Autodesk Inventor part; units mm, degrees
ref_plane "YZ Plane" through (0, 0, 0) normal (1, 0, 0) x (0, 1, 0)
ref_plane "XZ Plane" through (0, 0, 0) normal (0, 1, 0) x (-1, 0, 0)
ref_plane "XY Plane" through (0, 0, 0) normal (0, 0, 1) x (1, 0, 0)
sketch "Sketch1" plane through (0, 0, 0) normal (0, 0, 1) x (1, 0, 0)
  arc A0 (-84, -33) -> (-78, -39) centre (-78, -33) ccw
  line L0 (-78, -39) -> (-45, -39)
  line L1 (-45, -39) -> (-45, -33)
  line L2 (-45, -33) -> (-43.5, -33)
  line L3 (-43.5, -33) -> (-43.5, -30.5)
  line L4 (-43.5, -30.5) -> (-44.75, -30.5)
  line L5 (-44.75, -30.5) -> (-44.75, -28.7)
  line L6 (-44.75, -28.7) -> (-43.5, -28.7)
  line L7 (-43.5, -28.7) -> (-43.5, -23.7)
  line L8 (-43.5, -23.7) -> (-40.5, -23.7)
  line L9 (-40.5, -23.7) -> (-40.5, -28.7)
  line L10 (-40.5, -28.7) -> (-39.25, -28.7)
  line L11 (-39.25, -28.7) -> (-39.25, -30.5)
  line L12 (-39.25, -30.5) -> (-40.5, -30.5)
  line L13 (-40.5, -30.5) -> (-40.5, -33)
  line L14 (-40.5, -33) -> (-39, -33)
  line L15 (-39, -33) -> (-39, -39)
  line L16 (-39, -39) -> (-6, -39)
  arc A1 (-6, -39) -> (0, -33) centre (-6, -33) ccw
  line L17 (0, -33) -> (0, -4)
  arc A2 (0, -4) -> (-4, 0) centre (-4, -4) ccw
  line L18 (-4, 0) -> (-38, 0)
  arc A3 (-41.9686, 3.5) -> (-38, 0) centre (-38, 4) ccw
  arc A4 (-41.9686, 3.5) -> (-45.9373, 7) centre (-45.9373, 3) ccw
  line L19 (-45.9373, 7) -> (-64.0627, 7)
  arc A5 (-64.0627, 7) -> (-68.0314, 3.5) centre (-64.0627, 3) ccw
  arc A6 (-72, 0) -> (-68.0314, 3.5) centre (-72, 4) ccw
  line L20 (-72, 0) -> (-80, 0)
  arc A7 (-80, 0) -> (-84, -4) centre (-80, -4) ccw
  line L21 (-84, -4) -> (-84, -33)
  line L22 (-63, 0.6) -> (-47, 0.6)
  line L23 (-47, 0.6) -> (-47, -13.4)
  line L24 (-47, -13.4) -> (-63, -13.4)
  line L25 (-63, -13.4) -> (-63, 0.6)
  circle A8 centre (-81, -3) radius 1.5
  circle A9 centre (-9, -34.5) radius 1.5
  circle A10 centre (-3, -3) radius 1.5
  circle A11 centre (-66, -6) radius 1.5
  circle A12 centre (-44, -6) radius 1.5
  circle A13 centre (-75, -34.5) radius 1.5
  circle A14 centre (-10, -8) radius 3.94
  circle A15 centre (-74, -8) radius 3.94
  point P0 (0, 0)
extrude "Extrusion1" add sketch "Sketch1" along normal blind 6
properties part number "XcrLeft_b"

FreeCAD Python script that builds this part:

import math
import FreeCAD as App
import Part
import Sketcher

doc = App.newDocument("Part")
body = doc.addObject("PartDesign::Body", "Body")

sketch1 = doc.addObject("Sketcher::SketchObject", "Sketch")
body.addObject(sketch1)
sketch1.AttachmentSupport = (doc.XY_Plane, [""])
sketch1.MapMode = "FlatFace"
sketch1.addGeometry([
    Part.LineSegment(App.Vector(-84, -4, 0), App.Vector(-84, -33, 0)),
    Part.ArcOfCircle(Part.Circle(App.Vector(-78, -33, 0), App.Vector(0, 0, 1), 6), math.radians(180), math.radians(270)),
    Part.LineSegment(App.Vector(-78, -39, 0), App.Vector(-45, -39, 0)),
    Part.LineSegment(App.Vector(-45, -39, 0), App.Vector(-45, -33, 0)),
    Part.LineSegment(App.Vector(-45, -33, 0), App.Vector(-43.5, -33, 0)),
    Part.LineSegment(App.Vector(-43.5, -33, 0), App.Vector(-43.5, -30.5, 0)),
    Part.LineSegment(App.Vector(-43.5, -30.5, 0), App.Vector(-44.8, -30.5, 0)),
    Part.LineSegment(App.Vector(-44.8, -30.5, 0), App.Vector(-44.8, -28.7, 0)),
    Part.LineSegment(App.Vector(-44.8, -28.7, 0), App.Vector(-43.5, -28.7, 0)),
    Part.LineSegment(App.Vector(-43.5, -28.7, 0), App.Vector(-43.5, -23.7, 0)),
    Part.LineSegment(App.Vector(-43.5, -23.7, 0), App.Vector(-40.5, -23.7, 0)),
    Part.LineSegment(App.Vector(-40.5, -23.7, 0), App.Vector(-40.5, -28.7, 0)),
    Part.LineSegment(App.Vector(-40.5, -28.7, 0), App.Vector(-39.2, -28.7, 0)),
    Part.LineSegment(App.Vector(-39.2, -28.7, 0), App.Vector(-39.2, -30.5, 0)),
    Part.LineSegment(App.Vector(-39.2, -30.5, 0), App.Vector(-40.5, -30.5, 0)),
    Part.LineSegment(App.Vector(-40.5, -30.5, 0), App.Vector(-40.5, -33, 0)),
    Part.LineSegment(App.Vector(-40.5, -33, 0), App.Vector(-39, -33, 0)),
    Part.LineSegment(App.Vector(-39, -33, 0), App.Vector(-39, -39, 0)),
    Part.LineSegment(App.Vector(-39, -39, 0), App.Vector(-6, -39, 0)),
    Part.ArcOfCircle(Part.Circle(App.Vector(-6, -33, 0), App.Vector(0, 0, 1), 6), math.radians(-90), math.radians(0)),
    Part.LineSegment(App.Vector(0, -33, 0), App.Vector(0, -4, 0)),
    Part.ArcOfCircle(Part.Circle(App.Vector(-4, -4, 0), App.Vector(0, 0, 1), 4), math.radians(0), math.radians(90)),
    Part.LineSegment(App.Vector(-4, 0, 0), App.Vector(-38, 0, 0)),
    Part.ArcOfCircle(Part.Circle(App.Vector(-38, 4, 0), App.Vector(0, 0, 1), 4), math.radians(-173), math.radians(-90)),
    Part.ArcOfCircle(Part.Circle(App.Vector(-45.9, 3, 0), App.Vector(0, 0, 1), 4), math.radians(7), math.radians(90)),
    Part.LineSegment(App.Vector(-45.9, 7, 0), App.Vector(-64.1, 7, 0)),
    Part.ArcOfCircle(Part.Circle(App.Vector(-64.1, 3, 0), App.Vector(0, 0, 1), 4), math.radians(90), math.radians(173)),
    Part.ArcOfCircle(Part.Circle(App.Vector(-72, 4, 0), App.Vector(0, 0, 1), 4), math.radians(-90), math.radians(-7)),
    Part.LineSegment(App.Vector(-72, 0, 0), App.Vector(-80, 0, 0)),
    Part.ArcOfCircle(Part.Circle(App.Vector(-80, -4, 0), App.Vector(0, 0, 1), 4), math.radians(90), math.radians(180)),
    Part.Circle(App.Vector(-75, -34.5, 0), App.Vector(0, 0, 1), 1.5),
    Part.Circle(App.Vector(-9, -34.5, 0), App.Vector(0, 0, 1), 1.5),
    Part.Circle(App.Vector(-74, -8, 0), App.Vector(0, 0, 1), 3.9),
    Part.Circle(App.Vector(-66, -6, 0), App.Vector(0, 0, 1), 1.5),
    Part.LineSegment(App.Vector(-63, -13.4, 0), App.Vector(-63, 0.6, 0)),
    Part.LineSegment(App.Vector(-63, 0.6, 0), App.Vector(-47, 0.6, 0)),
    Part.LineSegment(App.Vector(-47, 0.6, 0), App.Vector(-47, -13.4, 0)),
    Part.LineSegment(App.Vector(-47, -13.4, 0), App.Vector(-63, -13.4, 0)),
    Part.Circle(App.Vector(-44, -6, 0), App.Vector(0, 0, 1), 1.5),
    Part.Circle(App.Vector(-81, -3, 0), App.Vector(0, 0, 1), 1.5),
    Part.Circle(App.Vector(-10, -8, 0), App.Vector(0, 0, 1), 3.9),
    Part.Circle(App.Vector(-3, -3, 0), App.Vector(0, 0, 1), 1.5),
], False)
sketch1.addConstraint([
    Sketcher.Constraint("Tangent", 0, 2, 1, 1),
    Sketcher.Constraint("Tangent", 1, 2, 2, 1),
    Sketcher.Constraint("Coincident", 2, 2, 3, 1),
    Sketcher.Constraint("Coincident", 3, 2, 4, 1),
    Sketcher.Constraint("Coincident", 4, 2, 5, 1),
    Sketcher.Constraint("Coincident", 5, 2, 6, 1),
    Sketcher.Constraint("Coincident", 6, 2, 7, 1),
    Sketcher.Constraint("Coincident", 7, 2, 8, 1),
    Sketcher.Constraint("Coincident", 8, 2, 9, 1),
    Sketcher.Constraint("Coincident", 9, 2, 10, 1),
    Sketcher.Constraint("Coincident", 10, 2, 11, 1),
    Sketcher.Constraint("Coincident", 11, 2, 12, 1),
    Sketcher.Constraint("Coincident", 12, 2, 13, 1),
    Sketcher.Constraint("Coincident", 13, 2, 14, 1),
    Sketcher.Constraint("Coincident", 14, 2, 15, 1),
    Sketcher.Constraint("Coincident", 15, 2, 16, 1),
    Sketcher.Constraint("Coincident", 16, 2, 17, 1),
    Sketcher.Constraint("Coincident", 17, 2, 18, 1),
    Sketcher.Constraint("Tangent", 18, 2, 19, 1),
    Sketcher.Constraint("Tangent", 19, 2, 20, 1),
    Sketcher.Constraint("Tangent", 20, 2, 21, 1),
    Sketcher.Constraint("Tangent", 21, 2, 22, 1),
    Sketcher.Constraint("Tangent", 22, 2, 23, 2),
    Sketcher.Constraint("Tangent", 23, 1, 24, 1),
    Sketcher.Constraint("Tangent", 24, 2, 25, 1),
    Sketcher.Constraint("Tangent", 25, 2, 26, 1),
    Sketcher.Constraint("Tangent", 26, 2, 27, 2),
    Sketcher.Constraint("Tangent", 27, 1, 28, 1),
    Sketcher.Constraint("Tangent", 28, 2, 29, 1),
    Sketcher.Constraint("Tangent", 29, 2, 0, 1),
    Sketcher.Constraint("Coincident", 34, 2, 35, 1),
    Sketcher.Constraint("Coincident", 35, 2, 36, 1),
    Sketcher.Constraint("Coincident", 36, 2, 37, 1),
    Sketcher.Constraint("Coincident", 37, 2, 34, 1),
    Sketcher.Constraint("Vertical", 0),
    Sketcher.Constraint("Horizontal", 2),
    Sketcher.Constraint("Vertical", 3),
    Sketcher.Constraint("Horizontal", 4),
    Sketcher.Constraint("Vertical", 5),
    Sketcher.Constraint("Horizontal", 6),
    Sketcher.Constraint("Vertical", 7),
    Sketcher.Constraint("Horizontal", 8),
    Sketcher.Constraint("Vertical", 9),
    Sketcher.Constraint("Horizontal", 10),
    Sketcher.Constraint("Vertical", 11),
    Sketcher.Constraint("Horizontal", 12),
    Sketcher.Constraint("Vertical", 13),
    Sketcher.Constraint("Horizontal", 14),
    Sketcher.Constraint("Vertical", 15),
    Sketcher.Constraint("Horizontal", 16),
    Sketcher.Constraint("Vertical", 17),
    Sketcher.Constraint("Horizontal", 18),
    Sketcher.Constraint("Vertical", 20),
    Sketcher.Constraint("Horizontal", 22),
    Sketcher.Constraint("Horizontal", 25),
    Sketcher.Constraint("Horizontal", 28),
    Sketcher.Constraint("Vertical", 34),
    Sketcher.Constraint("Horizontal", 35),
    Sketcher.Constraint("Vertical", 36),
    Sketcher.Constraint("Horizontal", 37),
    Sketcher.Constraint("Equal", 1, 19),
    Sketcher.Constraint("Equal", 21, 23),
    Sketcher.Constraint("Equal", 23, 24),
    Sketcher.Constraint("Equal", 24, 26),
    Sketcher.Constraint("Equal", 26, 27),
    Sketcher.Constraint("Equal", 27, 29),
    Sketcher.Constraint("Equal", 30, 31),
    Sketcher.Constraint("Equal", 31, 33),
    Sketcher.Constraint("Equal", 33, 38),
    Sketcher.Constraint("Equal", 38, 39),
    Sketcher.Constraint("Equal", 32, 40),
    Sketcher.Constraint("Equal", 39, 41),
    Sketcher.Constraint("PointOnObject", 19, 2, -2),
    Sketcher.Constraint("PointOnObject", 21, 2, -1),
    Sketcher.Constraint("PointOnObject", 27, 1, -1),
    Sketcher.Constraint("Horizontal", 1, 3, 19, 3),
    Sketcher.Constraint("Horizontal", 30, 3, 31, 3),
    Sketcher.Constraint("Horizontal", 33, 3, 38, 3),
    Sketcher.Constraint("Horizontal", 32, 3, 40, 3),
    Sketcher.Constraint("Horizontal", 39, 3, 41, 3),
    Sketcher.Constraint("Horizontal", 0, 2, 3, 2),
    Sketcher.Constraint("Horizontal", 8, 2, 11, 2),
    Sketcher.Constraint("Horizontal", 6, 2, 13, 2),
    Sketcher.Constraint("Horizontal", 4, 2, 15, 2),
    Sketcher.Constraint("Vertical", 5, 2, 8, 2),
    Sketcher.Constraint("Vertical", 11, 2, 14, 2),
    Sketcher.Constraint("Equal", 8, 12),
    Sketcher.Constraint("Equal", 4, 16),
    Sketcher.Constraint("Equal", 2, 18),
    Sketcher.Constraint("Diameter", 30, 3.0),
    Sketcher.Constraint("Radius", 1, 6.0),
    Sketcher.Constraint("Radius", 21, 4.0),
    Sketcher.Constraint("Diameter", 32, 7.88),
    Sketcher.Constraint("DistanceX", 2, 1, 2, 2, 33.0),
    Sketcher.Constraint("DistanceX", 10, 1, 10, 2, 3.0),
    Sketcher.Constraint("DistanceX", 22, 2, 22, 1, 34.0),
    Sketcher.Constraint("DistanceX", 28, 2, 28, 1, 8.0),
    Sketcher.Constraint("DistanceX", 35, 1, 35, 2, 16.0),
    Sketcher.Constraint("DistanceY", 0, 2, 0, 1, 29.0),
    Sketcher.Constraint("DistanceY", 9, 1, 9, 2, 5.0),
    Sketcher.Constraint("DistanceY", 34, 1, 34, 2, 14.0),
    Sketcher.Constraint("DistanceX", 4, 1, 4, 2, 1.5),
    Sketcher.Constraint("DistanceY", 5, 1, 5, 2, 2.5),
    Sketcher.Constraint("DistanceY", 7, 1, 7, 2, 1.8),
    Sketcher.Constraint("DistanceY", -1, 1, 24, 3, 3.0),
    Sketcher.Constraint("DistanceX", 30, 3, -1, 1, 75.0),
    Sketcher.Constraint("DistanceX", 31, 3, -1, 1, 9.0),
    Sketcher.Constraint("DistanceX", 32, 3, -1, 1, 74.0),
    Sketcher.Constraint("DistanceY", 32, 3, -1, 1, 8.0),
    Sketcher.Constraint("DistanceX", 33, 3, -1, 1, 66.0),
    Sketcher.Constraint("DistanceY", 33, 3, -1, 1, 6.0),
    Sketcher.Constraint("DistanceX", 38, 3, -1, 1, 44.0),
    Sketcher.Constraint("DistanceX", 39, 3, -1, 1, 81.0),
    Sketcher.Constraint("DistanceY", 39, 3, -1, 1, 3.0),
    Sketcher.Constraint("DistanceX", 40, 3, -1, 1, 10.0),
    Sketcher.Constraint("DistanceX", 41, 3, -1, 1, 3.0),
    Sketcher.Constraint("DistanceX", 34, 2, -1, 1, 63.0),
    Sketcher.Constraint("DistanceY", 30, 3, 5, 2, 4.0),
    Sketcher.Constraint("DistanceX", 6, 2, 6, 1, 1.25),
    Sketcher.Constraint("DistanceY", -1, 1, 34, 2, 0.6),
])
pad1 = doc.addObject("PartDesign::Pad", "Pad")
body.addObject(pad1)
pad1.Profile = sketch1
pad1.Length = 6

doc.recompute()
